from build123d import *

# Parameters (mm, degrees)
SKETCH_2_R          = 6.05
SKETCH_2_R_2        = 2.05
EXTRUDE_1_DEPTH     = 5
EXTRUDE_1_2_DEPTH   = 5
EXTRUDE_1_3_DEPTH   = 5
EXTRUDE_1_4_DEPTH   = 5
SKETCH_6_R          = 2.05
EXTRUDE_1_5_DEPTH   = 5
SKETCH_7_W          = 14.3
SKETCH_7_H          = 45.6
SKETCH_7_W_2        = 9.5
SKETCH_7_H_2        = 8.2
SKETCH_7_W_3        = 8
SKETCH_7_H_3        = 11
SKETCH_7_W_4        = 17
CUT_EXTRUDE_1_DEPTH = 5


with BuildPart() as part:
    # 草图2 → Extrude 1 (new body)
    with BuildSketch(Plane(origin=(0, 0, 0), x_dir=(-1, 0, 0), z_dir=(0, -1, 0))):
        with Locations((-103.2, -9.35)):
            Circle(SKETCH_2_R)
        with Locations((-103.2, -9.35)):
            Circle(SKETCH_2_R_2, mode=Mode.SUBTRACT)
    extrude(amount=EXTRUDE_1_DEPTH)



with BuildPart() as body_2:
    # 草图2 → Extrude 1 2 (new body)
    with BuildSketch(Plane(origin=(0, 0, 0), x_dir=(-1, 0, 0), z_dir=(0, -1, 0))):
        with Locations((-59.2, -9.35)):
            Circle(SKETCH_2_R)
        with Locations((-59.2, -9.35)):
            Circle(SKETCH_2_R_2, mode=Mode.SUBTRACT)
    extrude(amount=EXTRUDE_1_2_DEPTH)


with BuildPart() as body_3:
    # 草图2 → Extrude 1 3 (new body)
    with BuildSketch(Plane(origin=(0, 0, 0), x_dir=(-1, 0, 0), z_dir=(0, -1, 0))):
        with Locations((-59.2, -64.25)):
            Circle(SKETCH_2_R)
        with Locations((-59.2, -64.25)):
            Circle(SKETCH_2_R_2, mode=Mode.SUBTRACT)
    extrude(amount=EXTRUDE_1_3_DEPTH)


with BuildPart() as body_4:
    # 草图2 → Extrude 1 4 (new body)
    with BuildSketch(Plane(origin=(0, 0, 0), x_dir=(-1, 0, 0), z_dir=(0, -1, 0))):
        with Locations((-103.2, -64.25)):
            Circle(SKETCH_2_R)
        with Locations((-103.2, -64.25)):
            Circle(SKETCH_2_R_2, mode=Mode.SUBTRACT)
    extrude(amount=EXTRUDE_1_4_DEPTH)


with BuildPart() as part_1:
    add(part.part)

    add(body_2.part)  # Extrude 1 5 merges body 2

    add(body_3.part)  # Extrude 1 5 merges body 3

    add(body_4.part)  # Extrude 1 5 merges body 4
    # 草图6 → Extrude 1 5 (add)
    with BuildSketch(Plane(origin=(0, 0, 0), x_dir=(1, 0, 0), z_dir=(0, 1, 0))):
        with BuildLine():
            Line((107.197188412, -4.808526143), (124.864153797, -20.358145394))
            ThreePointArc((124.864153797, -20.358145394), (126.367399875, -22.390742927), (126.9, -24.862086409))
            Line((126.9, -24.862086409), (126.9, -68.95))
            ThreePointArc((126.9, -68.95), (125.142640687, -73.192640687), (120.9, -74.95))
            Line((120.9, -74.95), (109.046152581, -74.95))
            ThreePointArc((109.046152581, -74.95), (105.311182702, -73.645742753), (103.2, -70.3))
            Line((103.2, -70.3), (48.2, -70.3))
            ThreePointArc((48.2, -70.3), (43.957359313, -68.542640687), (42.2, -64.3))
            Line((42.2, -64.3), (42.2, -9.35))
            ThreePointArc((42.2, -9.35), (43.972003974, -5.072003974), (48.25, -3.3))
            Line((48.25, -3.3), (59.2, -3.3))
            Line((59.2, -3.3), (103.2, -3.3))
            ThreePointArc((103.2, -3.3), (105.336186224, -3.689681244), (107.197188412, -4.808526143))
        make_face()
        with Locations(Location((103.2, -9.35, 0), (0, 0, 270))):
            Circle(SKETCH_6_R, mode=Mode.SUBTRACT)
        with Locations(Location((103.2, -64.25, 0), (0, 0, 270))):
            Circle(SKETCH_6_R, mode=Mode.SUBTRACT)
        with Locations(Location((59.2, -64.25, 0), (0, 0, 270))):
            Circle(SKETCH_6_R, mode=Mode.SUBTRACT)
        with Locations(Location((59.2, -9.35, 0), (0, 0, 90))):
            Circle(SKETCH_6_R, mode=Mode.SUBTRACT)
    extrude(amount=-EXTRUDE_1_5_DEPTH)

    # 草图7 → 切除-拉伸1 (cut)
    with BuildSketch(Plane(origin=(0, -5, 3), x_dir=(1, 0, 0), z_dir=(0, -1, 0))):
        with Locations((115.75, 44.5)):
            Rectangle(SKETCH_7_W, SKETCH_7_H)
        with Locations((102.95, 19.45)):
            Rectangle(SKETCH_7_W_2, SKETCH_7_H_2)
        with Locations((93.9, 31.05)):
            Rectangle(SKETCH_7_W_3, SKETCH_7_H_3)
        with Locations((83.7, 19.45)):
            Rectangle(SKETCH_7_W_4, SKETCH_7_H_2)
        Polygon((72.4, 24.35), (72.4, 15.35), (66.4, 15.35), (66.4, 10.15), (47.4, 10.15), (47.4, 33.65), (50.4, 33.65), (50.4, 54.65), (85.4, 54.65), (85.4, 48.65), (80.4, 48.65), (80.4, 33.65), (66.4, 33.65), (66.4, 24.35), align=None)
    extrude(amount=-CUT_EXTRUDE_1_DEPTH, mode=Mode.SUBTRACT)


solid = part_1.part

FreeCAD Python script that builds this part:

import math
import FreeCAD as App
import Part
import Sketcher

V = App.Vector
Q = App.Units.Quantity


def add_polygon(sketch, points):
    """Adds a closed chain of lines whose ends are joined by coincident constraints."""
    first, n = sketch.GeometryCount, len(points)
    for a, b in zip(points, points[1:] + points[:1]):
        sketch.addGeometry(Part.LineSegment(App.Vector(*a, 0), App.Vector(*b, 0)), False)
    for i in range(n):
        sketch.addConstraint(Sketcher.Constraint("Coincident", first + i, 2, first + (i + 1) % n, 1))

doc = App.newDocument("Part")
params = doc.addObject("Spreadsheet::Sheet", "Params")
for row, (alias, value) in enumerate([
    ("sketch1_diameter", "12.1 mm"),
    ("sketch1_diameter2", "4.1 mm"),
    ("pad1_length", "5 mm"),
    ("sketch2_diameter", "12.1 mm"),
    ("sketch2_diameter2", "4.1 mm"),
    ("pad2_length", "5 mm"),
    ("sketch3_diameter", "12.1 mm"),
    ("sketch3_diameter2", "4.1 mm"),
    ("pad3_length", "5 mm"),
    ("sketch4_diameter", "12.1 mm"),
    ("sketch4_diameter2", "4.1 mm"),
    ("pad4_length", "5 mm"),
    ("sketch5_radius", "6 mm"),
    ("sketch5_diameter", "4.1 mm"),
    ("sketch5_width", "55 mm"),
    ("sketch5_radius2", "6.05 mm"),
    ("pad5_length", "5 mm"),
    ("sketch6_width", "8 mm"),
    ("sketch6_width2", "17 mm"),
    ("sketch6_width3", "6 mm"),
    ("sketch6_width4", "14 mm"),
    ("sketch6_width5", "5 mm"),
    ("pocket1_length", "5 mm"),
], start=1):
    params.set(f"A{row}", alias)
    params.set(f"B{row}", "=" + value)
    params.setAlias(f"B{row}", alias)

body = doc.addObject("PartDesign::Body", "Body")

# Sketch on XZ plane
sketch1 = body.newObject("Sketcher::SketchObject", "Sketch")
sketch1.AttachmentSupport = (doc.getObject("XZ_Plane"), [""])
sketch1.MapMode = "FlatFace"
sketch1.addGeometry([
    Part.Circle(V(103.2, 9.3, 0), V(0, 0, 1), 6),
    Part.Circle(V(103.2, 9.3, 0), V(0, 0, 1), 2),
], False)
sketch1.addConstraint([
    Sketcher.Constraint("Coincident", 1, 3, 0, 3),
    Sketcher.Constraint("Diameter", 0, Q("12.1 mm")),
    Sketcher.Constraint("Diameter", 1, Q("4.1 mm")),
    Sketcher.Constraint("DistanceX", -1, 1, 0, 3, Q("103.2 mm")),
    Sketcher.Constraint("DistanceY", -1, 1, 0, 3, Q("9.35 mm")),
])
sketch1.setExpression("Constraints[1]", "Params.sketch1_diameter")
sketch1.setExpression("Constraints[2]", "Params.sketch1_diameter2")
pad1 = body.newObject("PartDesign::Pad", "Pad")
pad1.Profile = sketch1
pad1.setExpression("Length", "Params.pad1_length")
body2 = doc.addObject("PartDesign::Body", "Body001")

# Sketch on XZ plane
sketch2 = body2.newObject("Sketcher::SketchObject", "Sketch001")
sketch2.AttachmentSupport = (doc.getObject("XZ_Plane001"), [""])
sketch2.MapMode = "FlatFace"
sketch2.addGeometry([
    Part.Circle(V(59.2, 9.3, 0), V(0, 0, 1), 6),
    Part.Circle(V(59.2, 9.3, 0), V(0, 0, 1), 2),
], False)
sketch2.addConstraint([
    Sketcher.Constraint("Coincident", 1, 3, 0, 3),
    Sketcher.Constraint("Diameter", 0, Q("12.1 mm")),
    Sketcher.Constraint("Diameter", 1, Q("4.1 mm")),
    Sketcher.Constraint("DistanceX", -1, 1, 0, 3, Q("59.2 mm")),
    Sketcher.Constraint("DistanceY", -1, 1, 0, 3, Q("9.35 mm")),
])
sketch2.setExpression("Constraints[1]", "Params.sketch2_diameter")
sketch2.setExpression("Constraints[2]", "Params.sketch2_diameter2")
pad2 = body2.newObject("PartDesign::Pad", "Pad001")
pad2.Profile = sketch2
pad2.setExpression("Length", "Params.pad2_length")
body3 = doc.addObject("PartDesign::Body", "Body002")

# Sketch on XZ plane
sketch3 = body3.newObject("Sketcher::SketchObject", "Sketch002")
sketch3.AttachmentSupport = (doc.getObject("XZ_Plane002"), [""])
sketch3.MapMode = "FlatFace"
sketch3.addGeometry([
    Part.Circle(V(59.2, 64.2, 0), V(0, 0, 1), 6),
    Part.Circle(V(59.2, 64.2, 0), V(0, 0, 1), 2),
], False)
sketch3.addConstraint([
    Sketcher.Constraint("Coincident", 1, 3, 0, 3),
    Sketcher.Constraint("Diameter", 0, Q("12.1 mm")),
    Sketcher.Constraint("Diameter", 1, Q("4.1 mm")),
    Sketcher.Constraint("DistanceX", -1, 1, 0, 3, Q("59.2 mm")),
    Sketcher.Constraint("DistanceY", -1, 1, 0, 3, Q("64.25 mm")),
])
sketch3.setExpression("Constraints[1]", "Params.sketch3_diameter")
sketch3.setExpression("Constraints[2]", "Params.sketch3_diameter2")
pad3 = body3.newObject("PartDesign::Pad", "Pad002")
pad3.Profile = sketch3
pad3.setExpression("Length", "Params.pad3_length")
body4 = doc.addObject("PartDesign::Body", "Body003")

# Sketch on XZ plane
sketch4 = body4.newObject("Sketcher::SketchObject", "Sketch003")
sketch4.AttachmentSupport = (doc.getObject("XZ_Plane003"), [""])
sketch4.MapMode = "FlatFace"
sketch4.addGeometry([
    Part.Circle(V(103.2, 64.2, 0), V(0, 0, 1), 6),
    Part.Circle(V(103.2, 64.2, 0), V(0, 0, 1), 2),
], False)
sketch4.addConstraint([
    Sketcher.Constraint("Coincident", 1, 3, 0, 3),
    Sketcher.Constraint("Diameter", 0, Q("12.1 mm")),
    Sketcher.Constraint("Diameter", 1, Q("4.1 mm")),
    Sketcher.Constraint("DistanceX", -1, 1, 0, 3, Q("103.2 mm")),
    Sketcher.Constraint("DistanceY", -1, 1, 0, 3, Q("64.25 mm")),
])
sketch4.setExpression("Constraints[1]", "Params.sketch4_diameter")
sketch4.setExpression("Constraints[2]", "Params.sketch4_diameter2")
pad4 = body4.newObject("PartDesign::Pad", "Pad003")
pad4.Profile = sketch4
pad4.setExpression("Length", "Params.pad4_length")
body.AllowCompound = True
doc.recompute()

boolean = body.newObject("PartDesign::Boolean", "Boolean")
boolean.Type = "Fuse"
boolean.addObjects([body2])
doc.recompute()

boolean2 = body.newObject("PartDesign::Boolean", "Boolean001")
boolean2.Type = "Fuse"
boolean2.addObjects([body3])
doc.recompute()

boolean3 = body.newObject("PartDesign::Boolean", "Boolean002")
boolean3.Type = "Fuse"
boolean3.addObjects([body4])

# Sketch on XZ plane
sketch5 = body.newObject("Sketcher::SketchObject", "Sketch004")
sketch5.AttachmentSupport = (doc.getObject("XZ_Plane"), [""])
sketch5.MapMode = "FlatFace"
sketch5.addGeometry([
    Part.LineSegment(V(124.9, 20.4, 0), V(107.2, 4.8, 0)),  # 0
    Part.ArcOfCircle(Part.Circle(V(103.2, 9.3, 0), V(0, 0, 1), 6), math.radians(-90), math.radians(-49)),  # 1
    Part.LineSegment(V(103.2, 3.3, 0), V(48.2, 3.3, 0)),  # 2
    Part.ArcOfCircle(Part.Circle(V(48.3, 9.4, 0), V(0, 0, 1), 6.1), math.radians(-180), math.radians(-90)),  # 3
    Part.LineSegment(V(42.2, 9.3, 0), V(42.2, 64.3, 0)),  # 4
    Part.ArcOfCircle(Part.Circle(V(48.2, 64.3, 0), V(0, 0, 1), 6), math.radians(90), math.radians(180)),  # 5
    Part.LineSegment(V(48.2, 70.3, 0), V(103.2, 70.3, 0)),  # 6
    Part.ArcOfCircle(Part.Circle(V(109, 69, 0), V(0, 0, 1), 6), math.radians(90), math.radians(167)),  # 7
    Part.LineSegment(V(109, 75, 0), V(120.9, 75, 0)),  # 8
    Part.ArcOfCircle(Part.Circle(V(120.9, 69, 0), V(0, 0, 1), 6), math.radians(0), math.radians(90)),  # 9
    Part.LineSegment(V(126.9, 69, 0), V(126.9, 24.9, 0)),  # 10
    Part.ArcOfCircle(Part.Circle(V(120.9, 24.9, 0), V(0, 0, 1), 6), math.radians(-49), math.radians(0)),  # 11
    Part.Circle(V(103.2, 64.2, 0), V(0, 0, 1), 2),  # 12
    Part.Circle(V(59.2, 64.2, 0), V(0, 0, 1), 2),  # 13
    Part.Circle(V(103.2, 9.3, 0), V(0, 0, 1), 2),  # 14
    Part.Circle(V(59.2, 9.3, 0), V(0, 0, 1), 2),  # 15
], False)
sketch5.addConstraint([
    Sketcher.Constraint("Tangent", 0, 2, 1, 2),
    Sketcher.Constraint("Tangent", 1, 1, 2, 1),
    Sketcher.Constraint("Tangent", 2, 2, 3, 2),
    Sketcher.Constraint("Tangent", 3, 1, 4, 1),
    Sketcher.Constraint("Tangent", 4, 2, 5, 2),
    Sketcher.Constraint("Tangent", 5, 1, 6, 1),
    Sketcher.Constraint("Coincident", 6, 2, 7, 2),
    Sketcher.Constraint("Tangent", 7, 1, 8, 1),
    Sketcher.Constraint("Tangent", 8, 2, 9, 2),
    Sketcher.Constraint("Tangent", 9, 1, 10, 1),
    Sketcher.Constraint("Tangent", 10, 2, 11, 2),
    Sketcher.Constraint("Tangent", 11, 1, 0, 1),
    Sketcher.Constraint("Horizontal", 2),
    Sketcher.Constraint("Vertical", 4),
    Sketcher.Constraint("Horizontal", 6),
    Sketcher.Constraint("Horizontal", 8),
    Sketcher.Constraint("Vertical", 10),
    Sketcher.Constraint("Coincident", 14, 3, 1, 3),
    Sketcher.Constraint("Equal", 1, 3),
    Sketcher.Constraint("Equal", 5, 7),
    Sketcher.Constraint("Equal", 7, 9),
    Sketcher.Constraint("Equal", 9, 11),
    Sketcher.Constraint("Equal", 12, 13),
    Sketcher.Constraint("Equal", 13, 14),
    Sketcher.Constraint("Equal", 14, 15),
    Sketcher.Constraint("Horizontal", 12, 3, 13, 3),
    Sketcher.Constraint("Horizontal", 14, 3, 15, 3),
    Sketcher.Constraint("Vertical", 1, 3, 12, 3),
    Sketcher.Constraint("Vertical", 13, 3, 15, 3),
    Sketcher.Constraint("Vertical", 1, 1, 6, 2),
    Sketcher.Constraint("Equal", 2, 4),
    Sketcher.Constraint("Radius", 5, Q("6 mm")),
    Sketcher.Constraint("Diameter", 12, Q("4.1 mm")),
    Sketcher.Constraint("DistanceX", 6, 1, 6, 2, Q("55 mm")),
    Sketcher.Constraint("Radius", 1, Q("6.05 mm")),
    Sketcher.Constraint("DistanceX", 5, 3, 13, 3, Q("11 mm")),
    Sketcher.Constraint("DistanceX", -1, 1, 1, 3, Q("103.2 mm")),
    Sketcher.Constraint("DistanceY", -1, 1, 5, 3, Q("64.3 mm")),
    Sketcher.Constraint("DistanceX", -1, 1, 9, 3, Q("120.9 mm")),
    Sketcher.Constraint("DistanceY", 1, 3, 7, 3, Q("59.6 mm")),
    Sketcher.Constraint("DistanceY", 12, 3, 7, 3, Q("4.7 mm")),
    Sketcher.Constraint("DistanceY", 10, 2, 10, 1, Q("44.087914 mm")),
])
sketch5.setExpression("Constraints[31]", "Params.sketch5_radius")
sketch5.setExpression("Constraints[32]", "Params.sketch5_diameter")
sketch5.setExpression("Constraints[33]", "Params.sketch5_width")
sketch5.setExpression("Constraints[34]", "Params.sketch5_radius2")
pad5 = body.newObject("PartDesign::Pad", "Pad004")
pad5.Profile = sketch5
pad5.setExpression("Length", "Params.pad5_length")

# Sketch on XZ plane
sketch6 = body.newObject("Sketcher::SketchObject", "Sketch005")
sketch6.AttachmentSupport = (doc.getObject("XZ_Plane"), [""])
sketch6.MapMode = "FlatFace"
sketch6.AttachmentOffset = App.Placement(V(0, 0, 5), App.Rotation())
add_polygon(sketch6, [(108.6, 70.3), (108.6, 24.7), (122.9, 24.7), (122.9, 70.3)])  # lines 0-3
add_polygon(sketch6, [(98.2, 26.6), (98.2, 18.4), (107.7, 18.4), (107.7, 26.6)])  # lines 4-7
add_polygon(sketch6, [(89.9, 39.5), (89.9, 28.6), (97.9, 28.6), (97.9, 39.5)])  # lines 8-11
add_polygon(sketch6, [(75.2, 26.6), (75.2, 18.4), (92.2, 18.4), (92.2, 26.6)])  # lines 12-15
add_polygon(sketch6, [(72.4, 18.4), (72.4, 27.4), (66.4, 27.4), (66.4, 36.6), (80.4, 36.6), (80.4, 51.6), (85.4, 51.6), (85.4, 57.6), (50.4, 57.6), (50.4, 36.6), (47.4, 36.6), (47.4, 13.2), (66.4, 13.2), (66.4, 18.4)])  # lines 16-29
sketch6.addConstraint([
    Sketcher.Constraint("Vertical", 0),
    Sketcher.Constraint("Horizontal", 1),
    Sketcher.Constraint("Vertical", 2),
    Sketcher.Constraint("Horizontal", 3),
    Sketcher.Constraint("Vertical", 4),
    Sketcher.Constraint("Horizontal", 5),
    Sketcher.Constraint("Vertical", 6),
    Sketcher.Constraint("Horizontal", 7),
    Sketcher.Constraint("Vertical", 8),
    Sketcher.Constraint("Horizontal", 9),
    Sketcher.Constraint("Vertical", 10),
    Sketcher.Constraint("Horizontal", 11),
    Sketcher.Constraint("Vertical", 12),
    Sketcher.Constraint("Horizontal", 13),
    Sketcher.Constraint("Vertical", 14),
    Sketcher.Constraint("Horizontal", 15),
    Sketcher.Constraint("Vertical", 16),
    Sketcher.Constraint("Horizontal", 17),
    Sketcher.Constraint("Vertical", 18),
    Sketcher.Constraint("Horizontal", 19),
    Sketcher.Constraint("Vertical", 20),
    Sketcher.Constraint("Horizontal", 21),
    Sketcher.Constraint("Vertical", 22),
    Sketcher.Constraint("Horizontal", 23),
    Sketcher.Constraint("Vertical", 24),
    Sketcher.Constraint("Horizontal", 25),
    Sketcher.Constraint("Vertical", 26),
    Sketcher.Constraint("Horizontal", 27),
    Sketcher.Constraint("Vertical", 28),
    Sketcher.Constraint("Horizontal", 29),
    Sketcher.Constraint("Horizontal", 5, 2, 12, 2),
    Sketcher.Constraint("Horizontal", 7, 2, 14, 2),
    Sketcher.Constraint("Horizontal", 19, 2, 24, 2),
    Sketcher.Constraint("Horizontal", 13, 2, 28, 2),
    Sketcher.Constraint("Vertical", 18, 2, 27, 2),
    Sketcher.Constraint("Equal", 29, 22),
    Sketcher.Constraint("DistanceX", 9, 1, 9, 2, Q("8 mm")),
    Sketcher.Constraint("DistanceX", 13, 1, 13, 2, Q("17 mm")),
    Sketcher.Constraint("DistanceX", 17, 2, 17, 1, Q("6 mm")),
    Sketcher.Constraint("DistanceX", 19, 1, 19, 2, Q("14 mm")),
    Sketcher.Constraint("DistanceX", 21, 1, 21, 2, Q("5 mm")),
    Sketcher.Constraint("DistanceX", 23, 2, 23, 1, Q("35 mm")),
    Sketcher.Constraint("DistanceX", 25, 2, 25, 1, Q("3 mm")),
    Sketcher.Constraint("DistanceY", 8, 2, 8, 1, Q("11 mm")),
    Sketcher.Constraint("DistanceY", 16, 1, 16, 2, Q("9 mm")),
    Sketcher.Constraint("DistanceY", 20, 1, 20, 2, Q("15 mm")),
    Sketcher.Constraint("DistanceX", 1, 1, 1, 2, Q("14.3 mm")),
    Sketcher.Constraint("DistanceX", 5, 1, 5, 2, Q("9.5 mm")),
    Sketcher.Constraint("DistanceY", 0, 2, 0, 1, Q("45.6 mm")),
    Sketcher.Constraint("DistanceY", 4, 2, 4, 1, Q("8.2 mm")),
    Sketcher.Constraint("DistanceY", 18, 1, 18, 2, Q("9.3 mm")),
    Sketcher.Constraint("DistanceY", 26, 2, 26, 1, Q("23.5 mm")),
    Sketcher.Constraint("DistanceY", 7, 2, 8, 2, Q("2 mm")),
    Sketcher.Constraint("DistanceX", 12, 2, 4, 2, Q("23 mm")),
    Sketcher.Constraint("DistanceX", -1, 1, 0, 2, Q("108.6 mm")),
    Sketcher.Constraint("DistanceY", -1, 1, 0, 2, Q("24.7 mm")),
    Sketcher.Constraint("DistanceX", -1, 1, 4, 2, Q("98.2 mm")),
    Sketcher.Constraint("DistanceX", -1, 1, 8, 2, Q("89.9 mm")),
    Sketcher.Constraint("DistanceX", -1, 1, 16, 2, Q("72.4 mm")),
    Sketcher.Constraint("DistanceY", -1, 1, 4, 2, Q("18.35 mm")),
])
sketch6.setExpression("Constraints[66]", "Params.sketch6_width")
sketch6.setExpression("Constraints[67]", "Params.sketch6_width2")
sketch6.setExpression("Constraints[68]", "Params.sketch6_width3")
sketch6.setExpression("Constraints[69]", "Params.sketch6_width4")
sketch6.setExpression("Constraints[70]", "Params.sketch6_width5")
pocket1 = body.newObject("PartDesign::Pocket", "Pocket")
pocket1.Profile = sketch6
pocket1.setExpression("Length", "Params.pocket1_length")

doc.recompute()
